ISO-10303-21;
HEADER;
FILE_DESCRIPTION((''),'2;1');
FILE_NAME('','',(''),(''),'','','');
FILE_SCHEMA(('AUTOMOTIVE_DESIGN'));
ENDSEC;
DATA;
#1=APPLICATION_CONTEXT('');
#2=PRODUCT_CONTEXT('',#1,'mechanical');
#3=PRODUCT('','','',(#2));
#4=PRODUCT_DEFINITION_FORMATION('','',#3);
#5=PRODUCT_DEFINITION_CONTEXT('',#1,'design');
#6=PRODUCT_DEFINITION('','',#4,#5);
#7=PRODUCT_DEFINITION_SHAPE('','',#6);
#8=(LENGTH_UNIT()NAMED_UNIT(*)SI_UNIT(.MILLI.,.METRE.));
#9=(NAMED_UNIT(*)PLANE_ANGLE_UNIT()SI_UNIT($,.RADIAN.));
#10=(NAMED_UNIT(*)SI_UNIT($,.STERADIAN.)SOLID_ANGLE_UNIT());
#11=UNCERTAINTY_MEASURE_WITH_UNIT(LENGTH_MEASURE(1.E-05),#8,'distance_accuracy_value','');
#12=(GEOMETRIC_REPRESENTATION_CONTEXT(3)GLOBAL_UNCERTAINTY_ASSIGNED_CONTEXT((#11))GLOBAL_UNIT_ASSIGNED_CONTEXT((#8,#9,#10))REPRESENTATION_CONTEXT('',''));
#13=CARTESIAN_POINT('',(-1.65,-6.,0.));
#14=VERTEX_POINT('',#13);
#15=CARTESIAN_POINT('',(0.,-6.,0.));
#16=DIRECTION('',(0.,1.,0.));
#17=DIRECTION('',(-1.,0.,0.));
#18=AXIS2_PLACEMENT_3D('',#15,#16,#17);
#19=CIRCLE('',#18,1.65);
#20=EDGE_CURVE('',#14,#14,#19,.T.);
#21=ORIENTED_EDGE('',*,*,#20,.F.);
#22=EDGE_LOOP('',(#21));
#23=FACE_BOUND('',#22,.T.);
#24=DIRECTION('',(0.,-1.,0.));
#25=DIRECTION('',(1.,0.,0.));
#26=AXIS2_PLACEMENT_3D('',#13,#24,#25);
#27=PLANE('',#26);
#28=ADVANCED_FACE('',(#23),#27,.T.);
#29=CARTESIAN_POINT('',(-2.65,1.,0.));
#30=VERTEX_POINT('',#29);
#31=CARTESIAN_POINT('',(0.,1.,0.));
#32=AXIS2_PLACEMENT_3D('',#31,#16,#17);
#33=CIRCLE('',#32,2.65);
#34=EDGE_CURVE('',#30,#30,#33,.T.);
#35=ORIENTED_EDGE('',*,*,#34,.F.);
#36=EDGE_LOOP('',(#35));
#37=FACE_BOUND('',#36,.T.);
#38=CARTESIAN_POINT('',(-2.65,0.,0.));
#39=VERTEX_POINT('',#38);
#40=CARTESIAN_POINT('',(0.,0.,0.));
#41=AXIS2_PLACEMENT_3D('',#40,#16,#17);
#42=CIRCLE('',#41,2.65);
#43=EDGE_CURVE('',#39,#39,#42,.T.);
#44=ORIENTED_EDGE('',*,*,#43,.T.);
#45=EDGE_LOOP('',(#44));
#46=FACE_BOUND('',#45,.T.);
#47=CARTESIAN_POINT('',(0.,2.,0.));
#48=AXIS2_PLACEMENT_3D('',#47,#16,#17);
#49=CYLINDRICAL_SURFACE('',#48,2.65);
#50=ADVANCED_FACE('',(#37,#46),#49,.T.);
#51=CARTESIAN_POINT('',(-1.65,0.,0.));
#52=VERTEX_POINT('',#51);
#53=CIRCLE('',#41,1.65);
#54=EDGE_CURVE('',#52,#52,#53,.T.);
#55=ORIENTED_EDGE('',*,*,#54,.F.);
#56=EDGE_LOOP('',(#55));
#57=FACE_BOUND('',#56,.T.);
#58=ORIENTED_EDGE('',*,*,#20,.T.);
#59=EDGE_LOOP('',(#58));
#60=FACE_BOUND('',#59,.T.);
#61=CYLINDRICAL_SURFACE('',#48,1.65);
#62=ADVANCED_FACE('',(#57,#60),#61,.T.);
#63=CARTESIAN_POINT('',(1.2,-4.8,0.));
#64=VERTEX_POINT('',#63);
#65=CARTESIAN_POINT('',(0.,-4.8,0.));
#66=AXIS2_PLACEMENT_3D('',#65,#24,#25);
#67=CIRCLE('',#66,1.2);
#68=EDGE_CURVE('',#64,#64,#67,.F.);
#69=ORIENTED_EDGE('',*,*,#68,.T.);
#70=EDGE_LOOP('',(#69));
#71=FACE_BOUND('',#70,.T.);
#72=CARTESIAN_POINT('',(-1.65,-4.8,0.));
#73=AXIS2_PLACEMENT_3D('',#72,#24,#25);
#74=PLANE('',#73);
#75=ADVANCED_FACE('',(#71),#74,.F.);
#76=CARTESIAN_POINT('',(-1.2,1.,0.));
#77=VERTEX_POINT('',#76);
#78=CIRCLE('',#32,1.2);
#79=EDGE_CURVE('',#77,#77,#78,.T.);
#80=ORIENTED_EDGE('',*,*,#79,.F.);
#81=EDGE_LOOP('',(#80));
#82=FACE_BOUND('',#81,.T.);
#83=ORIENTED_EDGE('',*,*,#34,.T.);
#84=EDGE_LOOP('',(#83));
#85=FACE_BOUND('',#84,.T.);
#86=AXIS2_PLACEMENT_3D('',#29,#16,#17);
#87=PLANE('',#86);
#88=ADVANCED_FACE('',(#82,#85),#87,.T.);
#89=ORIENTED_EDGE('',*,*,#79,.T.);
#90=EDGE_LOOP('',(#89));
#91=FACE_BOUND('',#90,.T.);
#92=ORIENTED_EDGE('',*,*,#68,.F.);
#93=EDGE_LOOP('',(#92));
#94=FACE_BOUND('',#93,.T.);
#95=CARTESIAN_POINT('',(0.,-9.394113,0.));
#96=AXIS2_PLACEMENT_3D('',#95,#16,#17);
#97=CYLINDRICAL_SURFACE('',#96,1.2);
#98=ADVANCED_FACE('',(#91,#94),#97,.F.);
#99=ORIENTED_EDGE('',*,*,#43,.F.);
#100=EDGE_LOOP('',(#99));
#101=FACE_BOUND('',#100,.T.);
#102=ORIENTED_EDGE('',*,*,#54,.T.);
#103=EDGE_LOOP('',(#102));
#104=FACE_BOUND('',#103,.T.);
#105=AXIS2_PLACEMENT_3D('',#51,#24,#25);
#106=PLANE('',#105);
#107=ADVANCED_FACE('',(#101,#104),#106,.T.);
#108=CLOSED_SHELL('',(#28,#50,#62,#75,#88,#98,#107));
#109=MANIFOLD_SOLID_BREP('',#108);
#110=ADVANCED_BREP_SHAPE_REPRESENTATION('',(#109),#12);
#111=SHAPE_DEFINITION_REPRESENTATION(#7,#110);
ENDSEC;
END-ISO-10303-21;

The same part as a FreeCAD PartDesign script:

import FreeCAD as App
import Part
import Sketcher
from FreeCAD import Vector


def add_polygon(sketch, points):
    """Adds a closed chain of lines whose ends are joined by coincident constraints."""
    first, n = sketch.GeometryCount, len(points)
    for a, b in zip(points, points[1:] + points[:1]):
        sketch.addGeometry(Part.LineSegment(App.Vector(*a, 0), App.Vector(*b, 0)), False)
    for i in range(n):
        sketch.addConstraint(Sketcher.Constraint("Coincident", first + i, 2, first + (i + 1) % n, 1))

doc = App.newDocument("Part")
body = doc.addObject("PartDesign::Body", "Body")

sketch1 = body.newObject("Sketcher::SketchObject", "Sketch")
sketch1.AttachmentSupport = (doc.getObject("XY_Plane"), [""])
sketch1.MapMode = "FlatFace"
add_polygon(sketch1, [(-1.6, 0), (-1.6, -6), (0, -6), (0, 1), (-2.6, 1), (-2.6, 0)])
sketch1.addConstraint([
    Sketcher.Constraint("Vertical", 0),
    Sketcher.Constraint("Horizontal", 1),
    Sketcher.Constraint("Vertical", 2),
    Sketcher.Constraint("Horizontal", 3),
    Sketcher.Constraint("Vertical", 4),
    Sketcher.Constraint("Horizontal", 5),
    Sketcher.Constraint("PointOnObject", 1, 2, -2),
    Sketcher.Constraint("PointOnObject", 4, 2, -1),
    Sketcher.Constraint("Equal", 5, 4),
    Sketcher.Constraint("DistanceX", 5, 1, 5, 2, 1.0),
    Sketcher.Constraint("DistanceY", 0, 2, 0, 1, 6.0),
    Sketcher.Constraint("DistanceX", 1, 1, 1, 2, 1.65),
])
revolution = body.newObject("PartDesign::Revolution", "Revolution")
revolution.Profile = sketch1
revolution.ReferenceAxis = (sketch1, ["V_Axis"])
revolution.Angle = 360

sketch2 = body.newObject("Sketcher::SketchObject", "Sketch001")
sketch2.AttachmentSupport = (doc.getObject("XZ_Plane"), [""])
sketch2.MapMode = "FlatFace"
sketch2.AttachmentOffset = App.Placement(Vector(0, 0, -1), App.Rotation())
sketch2.addGeometry(Part.Circle(Vector(0, 0, 0), Vector(0, 0, 1), 1.2), False)
sketch2.addConstraint([
    Sketcher.Constraint("Coincident", 0, 3, -1, 1),
    Sketcher.Constraint("Diameter", 0, 2.4),
])
pocket1 = body.newObject("PartDesign::Pocket", "Pocket")
pocket1.Profile = sketch2
pocket1.Length = 5.8
pocket1.Reversed = True

doc.recompute()
